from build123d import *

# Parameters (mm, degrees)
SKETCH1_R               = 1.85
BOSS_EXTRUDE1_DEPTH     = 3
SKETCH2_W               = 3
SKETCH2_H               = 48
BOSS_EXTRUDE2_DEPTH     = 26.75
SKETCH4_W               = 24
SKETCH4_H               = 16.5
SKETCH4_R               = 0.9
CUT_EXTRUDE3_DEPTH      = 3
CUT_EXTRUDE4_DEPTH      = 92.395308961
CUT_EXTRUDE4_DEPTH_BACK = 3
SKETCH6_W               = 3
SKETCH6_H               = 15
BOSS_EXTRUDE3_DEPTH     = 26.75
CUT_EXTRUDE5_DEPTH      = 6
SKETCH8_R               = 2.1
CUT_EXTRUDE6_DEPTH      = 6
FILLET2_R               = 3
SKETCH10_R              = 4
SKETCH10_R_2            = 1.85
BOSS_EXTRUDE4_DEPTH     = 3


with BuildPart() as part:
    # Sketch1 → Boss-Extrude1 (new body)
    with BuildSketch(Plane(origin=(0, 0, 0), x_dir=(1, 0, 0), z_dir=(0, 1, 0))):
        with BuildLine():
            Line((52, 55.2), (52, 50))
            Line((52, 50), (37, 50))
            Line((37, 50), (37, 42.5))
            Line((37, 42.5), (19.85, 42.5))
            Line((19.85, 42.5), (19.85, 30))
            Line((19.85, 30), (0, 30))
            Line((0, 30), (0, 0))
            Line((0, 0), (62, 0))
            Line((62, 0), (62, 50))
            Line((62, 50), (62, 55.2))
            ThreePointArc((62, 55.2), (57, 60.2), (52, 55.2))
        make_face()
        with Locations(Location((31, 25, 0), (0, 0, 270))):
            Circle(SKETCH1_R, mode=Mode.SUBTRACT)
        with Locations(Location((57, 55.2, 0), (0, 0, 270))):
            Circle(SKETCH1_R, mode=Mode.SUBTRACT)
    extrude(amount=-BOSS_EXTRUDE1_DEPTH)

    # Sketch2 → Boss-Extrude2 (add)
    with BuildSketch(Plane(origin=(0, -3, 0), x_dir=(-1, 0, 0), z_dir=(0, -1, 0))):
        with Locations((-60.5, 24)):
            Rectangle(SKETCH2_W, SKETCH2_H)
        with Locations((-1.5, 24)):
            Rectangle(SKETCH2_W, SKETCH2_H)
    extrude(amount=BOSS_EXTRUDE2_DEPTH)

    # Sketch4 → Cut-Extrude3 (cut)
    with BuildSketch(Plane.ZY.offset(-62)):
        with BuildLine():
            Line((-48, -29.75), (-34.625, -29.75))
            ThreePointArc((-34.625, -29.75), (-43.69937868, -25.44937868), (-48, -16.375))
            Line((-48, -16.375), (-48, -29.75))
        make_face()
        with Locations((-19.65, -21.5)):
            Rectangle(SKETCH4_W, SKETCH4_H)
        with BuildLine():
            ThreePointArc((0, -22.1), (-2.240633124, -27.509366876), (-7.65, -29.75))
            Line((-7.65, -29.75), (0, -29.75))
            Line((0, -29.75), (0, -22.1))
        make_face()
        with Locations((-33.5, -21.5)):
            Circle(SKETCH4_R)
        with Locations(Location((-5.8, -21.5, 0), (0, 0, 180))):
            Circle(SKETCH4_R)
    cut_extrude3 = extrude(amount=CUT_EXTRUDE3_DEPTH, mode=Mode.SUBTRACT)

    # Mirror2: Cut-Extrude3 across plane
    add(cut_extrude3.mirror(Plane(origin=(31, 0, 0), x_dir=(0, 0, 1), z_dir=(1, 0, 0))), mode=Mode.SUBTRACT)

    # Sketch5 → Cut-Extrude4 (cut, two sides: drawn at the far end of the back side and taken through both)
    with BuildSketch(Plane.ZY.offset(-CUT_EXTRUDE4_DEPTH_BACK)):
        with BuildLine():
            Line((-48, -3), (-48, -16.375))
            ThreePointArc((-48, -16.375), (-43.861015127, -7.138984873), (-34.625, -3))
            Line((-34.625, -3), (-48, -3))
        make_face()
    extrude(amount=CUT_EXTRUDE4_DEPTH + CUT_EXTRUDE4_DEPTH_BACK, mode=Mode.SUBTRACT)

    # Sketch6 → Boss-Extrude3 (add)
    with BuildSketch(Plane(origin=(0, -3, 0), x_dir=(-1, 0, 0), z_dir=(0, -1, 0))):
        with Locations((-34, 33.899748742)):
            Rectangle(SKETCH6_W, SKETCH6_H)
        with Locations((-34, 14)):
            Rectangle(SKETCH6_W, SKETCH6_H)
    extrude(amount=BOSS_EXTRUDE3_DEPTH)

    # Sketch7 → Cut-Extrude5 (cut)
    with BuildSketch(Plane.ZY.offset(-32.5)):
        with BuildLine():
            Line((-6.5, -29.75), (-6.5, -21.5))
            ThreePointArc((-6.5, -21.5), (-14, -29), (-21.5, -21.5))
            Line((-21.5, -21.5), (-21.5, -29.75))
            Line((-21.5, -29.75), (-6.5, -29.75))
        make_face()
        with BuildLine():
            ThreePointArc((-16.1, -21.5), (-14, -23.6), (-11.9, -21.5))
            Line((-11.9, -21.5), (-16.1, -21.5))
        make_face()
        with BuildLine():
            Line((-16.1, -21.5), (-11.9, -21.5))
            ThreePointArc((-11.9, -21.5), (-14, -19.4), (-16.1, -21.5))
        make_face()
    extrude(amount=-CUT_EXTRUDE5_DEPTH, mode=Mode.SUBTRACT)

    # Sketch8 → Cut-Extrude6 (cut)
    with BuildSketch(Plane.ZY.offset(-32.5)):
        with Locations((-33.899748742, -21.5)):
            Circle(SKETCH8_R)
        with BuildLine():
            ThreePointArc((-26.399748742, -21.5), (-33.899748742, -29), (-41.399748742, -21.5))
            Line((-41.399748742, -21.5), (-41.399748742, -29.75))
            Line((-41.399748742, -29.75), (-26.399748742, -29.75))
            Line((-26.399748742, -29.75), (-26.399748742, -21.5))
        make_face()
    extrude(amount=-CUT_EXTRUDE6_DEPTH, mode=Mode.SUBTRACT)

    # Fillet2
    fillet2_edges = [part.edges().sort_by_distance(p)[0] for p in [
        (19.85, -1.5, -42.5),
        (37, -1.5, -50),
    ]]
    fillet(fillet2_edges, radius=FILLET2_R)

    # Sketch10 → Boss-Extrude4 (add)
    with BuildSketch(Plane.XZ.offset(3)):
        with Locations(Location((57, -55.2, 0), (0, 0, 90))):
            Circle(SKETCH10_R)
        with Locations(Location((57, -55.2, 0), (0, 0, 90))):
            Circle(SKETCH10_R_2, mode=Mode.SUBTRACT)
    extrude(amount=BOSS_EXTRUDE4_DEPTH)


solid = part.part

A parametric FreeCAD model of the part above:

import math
import FreeCAD as App
import Part
import Sketcher

V = App.Vector
Q = App.Units.Quantity


def edges_at(feature, points):
    """Names of the edges that pass closest to the given points."""
    edges = feature.Shape.Edges
    near = lambda p: min(range(len(edges)), key=lambda i: edges[i].distToShape(Part.Vertex(*p))[0])
    return sorted({f"Edge{near(p) + 1}" for p in points})

doc = App.newDocument("Part")
body = doc.addObject("PartDesign::Body", "Body")

sketch1 = body.newObject("Sketcher::SketchObject", "Sketch")
sketch1.AttachmentSupport = (doc.getObject("XZ_Plane"), [""])
sketch1.MapMode = "FlatFace"
sketch1.addGeometry([
    Part.LineSegment(V(52, -55.2, 0), V(52, -50, 0)),
    Part.LineSegment(V(52, -50, 0), V(37, -50, 0)),
    Part.LineSegment(V(37, -50, 0), V(37, -42.5, 0)),
    Part.LineSegment(V(37, -42.5, 0), V(19.85, -42.5, 0)),
    Part.LineSegment(V(19.85, -42.5, 0), V(19.85, -30, 0)),
    Part.LineSegment(V(19.85, -30, 0), V(0, -30, 0)),
    Part.LineSegment(V(0, -30, 0), V(0, 0, 0)),
    Part.LineSegment(V(0, 0, 0), V(62, 0, 0)),
    Part.LineSegment(V(62, 0, 0), V(62, -55.2, 0)),
    Part.ArcOfCircle(Part.Circle(V(57, -55.2, 0), V(0, 0, 1), 5), math.radians(180), math.radians(360)),
    Part.Circle(V(31, -25, 0), V(0, 0, 1), 1.85),
    Part.Circle(V(57, -55.2, 0), V(0, 0, 1), 1.85),
], False)
sketch1.addConstraint([
    Sketcher.Constraint("Coincident", 0, 2, 1, 1),
    Sketcher.Constraint("Coincident", 1, 2, 2, 1),
    Sketcher.Constraint("Coincident", 2, 2, 3, 1),
    Sketcher.Constraint("Coincident", 3, 2, 4, 1),
    Sketcher.Constraint("Coincident", 4, 2, 5, 1),
    Sketcher.Constraint("Coincident", 5, 2, 6, 1),
    Sketcher.Constraint("Coincident", 6, 2, 7, 1),
    Sketcher.Constraint("Coincident", 7, 2, 8, 1),
    Sketcher.Constraint("Tangent", 8, 2, 9, 2),
    Sketcher.Constraint("Tangent", 9, 1, 0, 1),
    Sketcher.Constraint("Vertical", 0),
    Sketcher.Constraint("Horizontal", 1),
    Sketcher.Constraint("Vertical", 2),
    Sketcher.Constraint("Horizontal", 3),
    Sketcher.Constraint("Vertical", 4),
    Sketcher.Constraint("Horizontal", 5),
    Sketcher.Constraint("Vertical", 6),
    Sketcher.Constraint("Horizontal", 7),
    Sketcher.Constraint("Vertical", 8),
    Sketcher.Constraint("Coincident", 6, 2, -1, 1),
    Sketcher.Constraint("Coincident", 11, 3, 9, 3),
    Sketcher.Constraint("Equal", 10, 11),
    Sketcher.Constraint("Radius", 9, Q("5 mm")),
    Sketcher.Constraint("Diameter", 10, Q("3.7 mm")),
    Sketcher.Constraint("DistanceX", 1, 2, 1, 1, Q("15 mm")),
    Sketcher.Constraint("DistanceX", 7, 1, 7, 2, Q("62 mm")),
    Sketcher.Constraint("DistanceY", 6, 1, 6, 2, Q("30 mm")),
    Sketcher.Constraint("DistanceY", 0, 1, 0, 2, Q("5.2 mm")),
    Sketcher.Constraint("DistanceY", 2, 1, 2, 2, Q("7.5 mm")),
    Sketcher.Constraint("DistanceY", 4, 1, 4, 2, Q("12.5 mm")),
    Sketcher.Constraint("DistanceX", -1, 1, 10, 3, Q("31 mm")),
    Sketcher.Constraint("DistanceY", 10, 3, -1, 1, Q("25 mm")),
    Sketcher.Constraint("DistanceX", 3, 2, 3, 1, Q("17.15 mm")),
])
pad1 = body.newObject("PartDesign::Pad", "Pad")
pad1.Profile = sketch1
pad1.Length = 3

sketch2 = body.newObject("Sketcher::SketchObject", "Sketch001")
sketch2.AttachmentSupport = (doc.getObject("XZ_Plane"), [""])
sketch2.MapMode = "FlatFace"
sketch2.AttachmentOffset = App.Placement(V(0, 0, 3), App.Rotation())
sketch2.addGeometry([
    Part.LineSegment(V(62, -48, 0), V(62, 0, 0)),
    Part.LineSegment(V(62, 0, 0), V(59, 0, 0)),
    Part.LineSegment(V(59, 0, 0), V(59, -48, 0)),
    Part.LineSegment(V(59, -48, 0), V(62, -48, 0)),
    Part.LineSegment(V(3, -48, 0), V(3, 0, 0)),
    Part.LineSegment(V(3, 0, 0), V(0, 0, 0)),
    Part.LineSegment(V(0, 0, 0), V(0, -48, 0)),
    Part.LineSegment(V(0, -48, 0), V(3, -48, 0)),
], False)
sketch2.addConstraint([
    Sketcher.Constraint("Coincident", 0, 2, 1, 1),
    Sketcher.Constraint("Coincident", 1, 2, 2, 1),
    Sketcher.Constraint("Coincident", 2, 2, 3, 1),
    Sketcher.Constraint("Coincident", 3, 2, 0, 1),
    Sketcher.Constraint("Coincident", 4, 2, 5, 1),
    Sketcher.Constraint("Coincident", 5, 2, 6, 1),
    Sketcher.Constraint("Coincident", 6, 2, 7, 1),
    Sketcher.Constraint("Coincident", 7, 2, 4, 1),
    Sketcher.Constraint("Vertical", 0),
    Sketcher.Constraint("Horizontal", 1),
    Sketcher.Constraint("Vertical", 2),
    Sketcher.Constraint("Horizontal", 3),
    Sketcher.Constraint("Vertical", 4),
    Sketcher.Constraint("Horizontal", 5),
    Sketcher.Constraint("Vertical", 6),
    Sketcher.Constraint("Horizontal", 7),
    Sketcher.Constraint("Coincident", 5, 2, -1, 1),
    Sketcher.Constraint("PointOnObject", 0, 2, -1),
    Sketcher.Constraint("Horizontal", 3, 2, 6, 2),
    Sketcher.Constraint("Equal", 3, 5),
    Sketcher.Constraint("DistanceX", 1, 2, 1, 1, Q("3 mm")),
    Sketcher.Constraint("DistanceY", 0, 1, 0, 2, Q("48 mm")),
    Sketcher.Constraint("DistanceX", -1, 1, 0, 2, Q("62 mm")),
])
pad2 = body.newObject("PartDesign::Pad", "Pad001")
pad2.Profile = sketch2
pad2.Length = 26.75

sketch3 = body.newObject("Sketcher::SketchObject", "Sketch002")
sketch3.AttachmentSupport = (doc.getObject("YZ_Plane"), [""])
sketch3.MapMode = "FlatFace"
sketch3.AttachmentOffset = App.Placement(V(0, 0, 62), App.Rotation())
sketch3.addGeometry([
    Part.LineSegment(V(-29.75, -48, 0), V(-29.75, -34.625, 0)),
    Part.ArcOfCircle(Part.Circle(V(-14.8875, -33.1375, 0), V(0, 0, 1), 14.936752), math.radians(-174.284636), math.radians(-95.715364)),
    Part.LineSegment(V(-16.375, -48, 0), V(-29.75, -48, 0)),
    Part.LineSegment(V(-13.25, -31.65, 0), V(-29.75, -31.65, 0)),
    Part.LineSegment(V(-29.75, -31.65, 0), V(-29.75, -7.65, 0)),
    Part.LineSegment(V(-29.75, -7.65, 0), V(-13.25, -7.65, 0)),
    Part.LineSegment(V(-13.25, -7.65, 0), V(-13.25, -31.65, 0)),
    Part.ArcOfCircle(Part.Circle(V(-22.1, -7.65, 0), V(0, 0, 1), 7.65), math.radians(90), math.radians(180)),
    Part.LineSegment(V(-29.75, -7.65, 0), V(-29.75, 0, 0)),
    Part.LineSegment(V(-29.75, 0, 0), V(-22.1, 0, 0)),
    Part.Circle(V(-21.5, -33.5, 0), V(0, 0, 1), 0.9),
    Part.Circle(V(-21.5, -5.8, 0), V(0, 0, 1), 0.9),
], False)
sketch3.addConstraint([
    Sketcher.Constraint("Coincident", 0, 2, 1, 1),
    Sketcher.Constraint("Coincident", 1, 2, 2, 1),
    Sketcher.Constraint("Coincident", 2, 2, 0, 1),
    Sketcher.Constraint("Coincident", 3, 2, 4, 1),
    Sketcher.Constraint("Coincident", 4, 2, 5, 1),
    Sketcher.Constraint("Coincident", 5, 2, 6, 1),
    Sketcher.Constraint("Coincident", 6, 2, 3, 1),
    Sketcher.Constraint("Tangent", 7, 2, 8, 1),
    Sketcher.Constraint("Coincident", 8, 2, 9, 1),
    Sketcher.Constraint("Tangent", 9, 2, 7, 1),
    Sketcher.Constraint("Vertical", 0),
    Sketcher.Constraint("Horizontal", 2),
    Sketcher.Constraint("Horizontal", 3),
    Sketcher.Constraint("Vertical", 4),
    Sketcher.Constraint("Horizontal", 5),
    Sketcher.Constraint("Vertical", 6),
    Sketcher.Constraint("Vertical", 8),
    Sketcher.Constraint("Horizontal", 9),
    Sketcher.Constraint("Coincident", 7, 2, 4, 2),
    Sketcher.Constraint("Equal", 10, 11),
    Sketcher.Constraint("PointOnObject", 8, 2, -1),
    Sketcher.Constraint("Vertical", 10, 3, 11, 3),
    Sketcher.Constraint("Vertical", 2, 2, 3, 2),
    Sketcher.Constraint("Equal", 2, 0),
    Sketcher.Constraint("Diameter", 10, Q("1.8 mm")),
    Sketcher.Constraint("DistanceY", 4, 1, 4, 2, Q("24 mm")),
    Sketcher.Constraint("Radius", 7, Q("7.65 mm")),
    Sketcher.Constraint("DistanceX", 3, 2, 3, 1, Q("16.5 mm")),
    Sketcher.Constraint("DistanceY", 1, 2, -1, 1, Q("48 mm")),
    Sketcher.Constraint("DistanceX", 7, 3, -1, 1, Q("22.1 mm")),
    Sketcher.Constraint("DistanceX", 10, 3, -1, 1, Q("21.5 mm")),
    Sketcher.Constraint("DistanceY", 10, 3, -1, 1, Q("33.5 mm")),
    Sketcher.Constraint("DistanceY", 11, 3, -1, 1, Q("5.8 mm")),
    Sketcher.Constraint("DistanceX", 2, 2, 2, 1, Q("13.375 mm")),
    Sketcher.Constraint("Radius", 1, Q("14.936752 mm")),
])
pocket1 = body.newObject("PartDesign::Pocket", "Pocket")
pocket1.Profile = sketch3
pocket1.Length = 3
doc.recompute()

datumplane = body.newObject("PartDesign::Plane", "DatumPlane")
datumplane.AttachmentSupport = (doc.getObject("YZ_Plane"), [""])
datumplane.MapMode = "FlatFace"
datumplane.AttachmentOffset = App.Placement(V(0, 0, 31), App.Rotation())
mirrored = body.newObject("PartDesign::Mirrored", "Mirrored")
mirrored.Originals = [pocket1]
mirrored.MirrorPlane = (datumplane, [""])
body.Tip = mirrored

sketch4 = body.newObject("Sketcher::SketchObject", "Sketch003")
sketch4.AttachmentSupport = (doc.getObject("YZ_Plane"), [""])
sketch4.MapMode = "FlatFace"
sketch4.addGeometry([
    Part.LineSegment(V(-3, -48, 0), V(-16.375, -48, 0)),
    Part.ArcOfCircle(Part.Circle(V(-17.1875, -33.8125, 0), V(0, 0, 1), 14.210746), math.radians(-86.722324), math.radians(-3.277676)),
    Part.LineSegment(V(-3, -34.625, 0), V(-3, -48, 0)),
], False)
sketch4.addConstraint([
    Sketcher.Constraint("Coincident", 0, 2, 1, 1),
    Sketcher.Constraint("Coincident", 1, 2, 2, 1),
    Sketcher.Constraint("Coincident", 2, 2, 0, 1),
    Sketcher.Constraint("Horizontal", 0),
    Sketcher.Constraint("Vertical", 2),
    Sketcher.Constraint("Equal", 0, 2),
    Sketcher.Constraint("DistanceY", 0, 2, -1, 1, Q("48 mm")),
    Sketcher.Constraint("DistanceX", 1, 2, -1, 1, Q("3 mm")),
    Sketcher.Constraint("DistanceX", 0, 2, 0, 1, Q("13.375 mm")),
    Sketcher.Constraint("Radius", 1, Q("14.210746 mm")),
])
pocket2 = body.newObject("PartDesign::Pocket", "Pocket001")
pocket2.Profile = sketch4
pocket2.Type = "TwoLengths"
pocket2.Length = 92.395309
pocket2.Length2 = 3

sketch5 = body.newObject("Sketcher::SketchObject", "Sketch004")
sketch5.AttachmentSupport = (doc.getObject("XZ_Plane"), [""])
sketch5.MapMode = "FlatFace"
sketch5.AttachmentOffset = App.Placement(V(0, 0, 3), App.Rotation())
sketch5.addGeometry([
    Part.LineSegment(V(35.5, -41.399749, 0), V(35.5, -26.399749, 0)),
    Part.LineSegment(V(35.5, -26.399749, 0), V(32.5, -26.399749, 0)),
    Part.LineSegment(V(32.5, -26.399749, 0), V(32.5, -41.399749, 0)),
    Part.LineSegment(V(32.5, -41.399749, 0), V(35.5, -41.399749, 0)),
    Part.LineSegment(V(35.5, -21.5, 0), V(35.5, -6.5, 0)),
    Part.LineSegment(V(35.5, -6.5, 0), V(32.5, -6.5, 0)),
    Part.LineSegment(V(32.5, -6.5, 0), V(32.5, -21.5, 0)),
    Part.LineSegment(V(32.5, -21.5, 0), V(35.5, -21.5, 0)),
], False)
sketch5.addConstraint([
    Sketcher.Constraint("Coincident", 0, 2, 1, 1),
    Sketcher.Constraint("Coincident", 1, 2, 2, 1),
    Sketcher.Constraint("Coincident", 2, 2, 3, 1),
    Sketcher.Constraint("Coincident", 3, 2, 0, 1),
    Sketcher.Constraint("Coincident", 4, 2, 5, 1),
    Sketcher.Constraint("Coincident", 5, 2, 6, 1),
    Sketcher.Constraint("Coincident", 6, 2, 7, 1),
    Sketcher.Constraint("Coincident", 7, 2, 4, 1),
    Sketcher.Constraint("Vertical", 0),
    Sketcher.Constraint("Horizontal", 1),
    Sketcher.Constraint("Vertical", 2),
    Sketcher.Constraint("Horizontal", 3),
    Sketcher.Constraint("Vertical", 4),
    Sketcher.Constraint("Horizontal", 5),
    Sketcher.Constraint("Vertical", 6),
    Sketcher.Constraint("Horizontal", 7),
    Sketcher.Constraint("Vertical", 3, 2, 4, 2),
    Sketcher.Constraint("Vertical", 2, 2, 5, 2),
    Sketcher.Constraint("Equal", 2, 4),
    Sketcher.Constraint("DistanceX", 1, 2, 1, 1, Q("3 mm")),
    Sketcher.Constraint("DistanceY", 0, 1, 0, 2, Q("15 mm")),
    Sketcher.Constraint("DistanceX", -1, 1, 0, 2, Q("35.5 mm")),
    Sketcher.Constraint("DistanceY", 4, 2, -1, 1, Q("6.5 mm")),
    Sketcher.Constraint("DistanceY", 0, 2, -1, 1, Q("26.399749 mm")),
])
pad3 = body.newObject("PartDesign::Pad", "Pad002")
pad3.Profile = sketch5
pad3.Length = 26.75

sketch6 = body.newObject("Sketcher::SketchObject", "Sketch005")
sketch6.AttachmentSupport = (doc.getObject("YZ_Plane"), [""])
sketch6.MapMode = "FlatFace"
sketch6.AttachmentOffset = App.Placement(V(0, 0, 32.5), App.Rotation())
sketch6.addGeometry([
    Part.LineSegment(V(-29.75, -6.5, 0), V(-21.5, -6.5, 0)),
    Part.ArcOfCircle(Part.Circle(V(-21.5, -14, 0), V(0, 0, 1), 7.5), math.radians(90), math.radians(270)),
    Part.LineSegment(V(-21.5, -21.5, 0), V(-29.75, -21.5, 0)),
    Part.LineSegment(V(-29.75, -21.5, 0), V(-29.75, -6.5, 0)),
    Part.Circle(V(-21.5, -14, 0), V(0, 0, 1), 2.1),
], False)
sketch6.addConstraint([
    Sketcher.Constraint("Tangent", 0, 2, 1, 1),
    Sketcher.Constraint("Tangent", 1, 2, 2, 1),
    Sketcher.Constraint("Coincident", 2, 2, 3, 1),
    Sketcher.Constraint("Coincident", 3, 2, 0, 1),
    Sketcher.Constraint("Horizontal", 0),
    Sketcher.Constraint("Horizontal", 2),
    Sketcher.Constraint("Vertical", 3),
    Sketcher.Constraint("Coincident", 4, 3, 1, 3),
    Sketcher.Constraint("Diameter", 4, Q("4.2 mm")),
    Sketcher.Constraint("Radius", 1, Q("7.5 mm")),
    Sketcher.Constraint("DistanceY", 1, 3, -1, 1, Q("14 mm")),
    Sketcher.Constraint("DistanceX", 0, 1, 0, 2, Q("8.25 mm")),
    Sketcher.Constraint("DistanceX", 1, 3, -1, 1, Q("21.5 mm")),
])
pocket3 = body.newObject("PartDesign::Pocket", "Pocket002")
pocket3.Profile = sketch6
pocket3.Length = 6
pocket3.Reversed = True

sketch7 = body.newObject("Sketcher::SketchObject", "Sketch006")
sketch7.AttachmentSupport = (doc.getObject("YZ_Plane"), [""])
sketch7.MapMode = "FlatFace"
sketch7.AttachmentOffset = App.Placement(V(0, 0, 32.5), App.Rotation())
sketch7.addGeometry([
    Part.Circle(V(-21.5, -33.899749, 0), V(0, 0, 1), 2.1),
    Part.ArcOfCircle(Part.Circle(V(-21.5, -33.899749, 0), V(0, 0, 1), 7.5), math.radians(90), math.radians(270)),
    Part.LineSegment(V(-21.5, -41.399749, 0), V(-29.75, -41.399749, 0)),
    Part.LineSegment(V(-29.75, -41.399749, 0), V(-29.75, -26.399749, 0)),
    Part.LineSegment(V(-29.75, -26.399749, 0), V(-21.5, -26.399749, 0)),
], False)
sketch7.addConstraint([
    Sketcher.Constraint("Tangent", 1, 2, 2, 1),
    Sketcher.Constraint("Coincident", 2, 2, 3, 1),
    Sketcher.Constraint("Coincident", 3, 2, 4, 1),
    Sketcher.Constraint("Tangent", 4, 2, 1, 1),
    Sketcher.Constraint("Horizontal", 2),
    Sketcher.Constraint("Vertical", 3),
    Sketcher.Constraint("Horizontal", 4),
    Sketcher.Constraint("Coincident", 1, 3, 0, 3),
    Sketcher.Constraint("Diameter", 0, Q("4.2 mm")),
    Sketcher.Constraint("Radius", 1, Q("7.5 mm")),
    Sketcher.Constraint("DistanceX", 2, 2, 2, 1, Q("8.25 mm")),
    Sketcher.Constraint("DistanceX", 0, 3, -1, 1, Q("21.5 mm")),
    Sketcher.Constraint("DistanceY", 0, 3, -1, 1, Q("33.899749 mm")),
])
pocket4 = body.newObject("PartDesign::Pocket", "Pocket003")
pocket4.Profile = sketch7
pocket4.Length = 6
pocket4.Reversed = True
doc.recompute()

fillet = body.newObject("PartDesign::Fillet", "Fillet")
fillet.Base = (pocket4, edges_at(pocket4, [(19.85, -1.5, -42.5), (37, -1.5, -50)]))
fillet.Radius = 3

sketch8 = body.newObject("Sketcher::SketchObject", "Sketch007")
sketch8.AttachmentSupport = (doc.getObject("XZ_Plane"), [""])
sketch8.MapMode = "FlatFace"
sketch8.AttachmentOffset = App.Placement(V(0, 0, 3), App.Rotation())
sketch8.addGeometry([
    Part.Circle(V(57, -55.2, 0), V(0, 0, 1), 4),
    Part.Circle(V(57, -55.2, 0), V(0, 0, 1), 1.85),
], False)
sketch8.addConstraint([
    Sketcher.Constraint("Coincident", 1, 3, 0, 3),
    Sketcher.Constraint("Diameter", 0, Q("8 mm")),
    Sketcher.Constraint("Diameter", 1, Q("3.7 mm")),
    Sketcher.Constraint("DistanceX", -1, 1, 0, 3, Q("57 mm")),
    Sketcher.Constraint("DistanceY", 0, 3, -1, 1, Q("55.2 mm")),
])
pad4 = body.newObject("PartDesign::Pad", "Pad003")
pad4.Profile = sketch8
pad4.Length = 3

doc.recompute()
